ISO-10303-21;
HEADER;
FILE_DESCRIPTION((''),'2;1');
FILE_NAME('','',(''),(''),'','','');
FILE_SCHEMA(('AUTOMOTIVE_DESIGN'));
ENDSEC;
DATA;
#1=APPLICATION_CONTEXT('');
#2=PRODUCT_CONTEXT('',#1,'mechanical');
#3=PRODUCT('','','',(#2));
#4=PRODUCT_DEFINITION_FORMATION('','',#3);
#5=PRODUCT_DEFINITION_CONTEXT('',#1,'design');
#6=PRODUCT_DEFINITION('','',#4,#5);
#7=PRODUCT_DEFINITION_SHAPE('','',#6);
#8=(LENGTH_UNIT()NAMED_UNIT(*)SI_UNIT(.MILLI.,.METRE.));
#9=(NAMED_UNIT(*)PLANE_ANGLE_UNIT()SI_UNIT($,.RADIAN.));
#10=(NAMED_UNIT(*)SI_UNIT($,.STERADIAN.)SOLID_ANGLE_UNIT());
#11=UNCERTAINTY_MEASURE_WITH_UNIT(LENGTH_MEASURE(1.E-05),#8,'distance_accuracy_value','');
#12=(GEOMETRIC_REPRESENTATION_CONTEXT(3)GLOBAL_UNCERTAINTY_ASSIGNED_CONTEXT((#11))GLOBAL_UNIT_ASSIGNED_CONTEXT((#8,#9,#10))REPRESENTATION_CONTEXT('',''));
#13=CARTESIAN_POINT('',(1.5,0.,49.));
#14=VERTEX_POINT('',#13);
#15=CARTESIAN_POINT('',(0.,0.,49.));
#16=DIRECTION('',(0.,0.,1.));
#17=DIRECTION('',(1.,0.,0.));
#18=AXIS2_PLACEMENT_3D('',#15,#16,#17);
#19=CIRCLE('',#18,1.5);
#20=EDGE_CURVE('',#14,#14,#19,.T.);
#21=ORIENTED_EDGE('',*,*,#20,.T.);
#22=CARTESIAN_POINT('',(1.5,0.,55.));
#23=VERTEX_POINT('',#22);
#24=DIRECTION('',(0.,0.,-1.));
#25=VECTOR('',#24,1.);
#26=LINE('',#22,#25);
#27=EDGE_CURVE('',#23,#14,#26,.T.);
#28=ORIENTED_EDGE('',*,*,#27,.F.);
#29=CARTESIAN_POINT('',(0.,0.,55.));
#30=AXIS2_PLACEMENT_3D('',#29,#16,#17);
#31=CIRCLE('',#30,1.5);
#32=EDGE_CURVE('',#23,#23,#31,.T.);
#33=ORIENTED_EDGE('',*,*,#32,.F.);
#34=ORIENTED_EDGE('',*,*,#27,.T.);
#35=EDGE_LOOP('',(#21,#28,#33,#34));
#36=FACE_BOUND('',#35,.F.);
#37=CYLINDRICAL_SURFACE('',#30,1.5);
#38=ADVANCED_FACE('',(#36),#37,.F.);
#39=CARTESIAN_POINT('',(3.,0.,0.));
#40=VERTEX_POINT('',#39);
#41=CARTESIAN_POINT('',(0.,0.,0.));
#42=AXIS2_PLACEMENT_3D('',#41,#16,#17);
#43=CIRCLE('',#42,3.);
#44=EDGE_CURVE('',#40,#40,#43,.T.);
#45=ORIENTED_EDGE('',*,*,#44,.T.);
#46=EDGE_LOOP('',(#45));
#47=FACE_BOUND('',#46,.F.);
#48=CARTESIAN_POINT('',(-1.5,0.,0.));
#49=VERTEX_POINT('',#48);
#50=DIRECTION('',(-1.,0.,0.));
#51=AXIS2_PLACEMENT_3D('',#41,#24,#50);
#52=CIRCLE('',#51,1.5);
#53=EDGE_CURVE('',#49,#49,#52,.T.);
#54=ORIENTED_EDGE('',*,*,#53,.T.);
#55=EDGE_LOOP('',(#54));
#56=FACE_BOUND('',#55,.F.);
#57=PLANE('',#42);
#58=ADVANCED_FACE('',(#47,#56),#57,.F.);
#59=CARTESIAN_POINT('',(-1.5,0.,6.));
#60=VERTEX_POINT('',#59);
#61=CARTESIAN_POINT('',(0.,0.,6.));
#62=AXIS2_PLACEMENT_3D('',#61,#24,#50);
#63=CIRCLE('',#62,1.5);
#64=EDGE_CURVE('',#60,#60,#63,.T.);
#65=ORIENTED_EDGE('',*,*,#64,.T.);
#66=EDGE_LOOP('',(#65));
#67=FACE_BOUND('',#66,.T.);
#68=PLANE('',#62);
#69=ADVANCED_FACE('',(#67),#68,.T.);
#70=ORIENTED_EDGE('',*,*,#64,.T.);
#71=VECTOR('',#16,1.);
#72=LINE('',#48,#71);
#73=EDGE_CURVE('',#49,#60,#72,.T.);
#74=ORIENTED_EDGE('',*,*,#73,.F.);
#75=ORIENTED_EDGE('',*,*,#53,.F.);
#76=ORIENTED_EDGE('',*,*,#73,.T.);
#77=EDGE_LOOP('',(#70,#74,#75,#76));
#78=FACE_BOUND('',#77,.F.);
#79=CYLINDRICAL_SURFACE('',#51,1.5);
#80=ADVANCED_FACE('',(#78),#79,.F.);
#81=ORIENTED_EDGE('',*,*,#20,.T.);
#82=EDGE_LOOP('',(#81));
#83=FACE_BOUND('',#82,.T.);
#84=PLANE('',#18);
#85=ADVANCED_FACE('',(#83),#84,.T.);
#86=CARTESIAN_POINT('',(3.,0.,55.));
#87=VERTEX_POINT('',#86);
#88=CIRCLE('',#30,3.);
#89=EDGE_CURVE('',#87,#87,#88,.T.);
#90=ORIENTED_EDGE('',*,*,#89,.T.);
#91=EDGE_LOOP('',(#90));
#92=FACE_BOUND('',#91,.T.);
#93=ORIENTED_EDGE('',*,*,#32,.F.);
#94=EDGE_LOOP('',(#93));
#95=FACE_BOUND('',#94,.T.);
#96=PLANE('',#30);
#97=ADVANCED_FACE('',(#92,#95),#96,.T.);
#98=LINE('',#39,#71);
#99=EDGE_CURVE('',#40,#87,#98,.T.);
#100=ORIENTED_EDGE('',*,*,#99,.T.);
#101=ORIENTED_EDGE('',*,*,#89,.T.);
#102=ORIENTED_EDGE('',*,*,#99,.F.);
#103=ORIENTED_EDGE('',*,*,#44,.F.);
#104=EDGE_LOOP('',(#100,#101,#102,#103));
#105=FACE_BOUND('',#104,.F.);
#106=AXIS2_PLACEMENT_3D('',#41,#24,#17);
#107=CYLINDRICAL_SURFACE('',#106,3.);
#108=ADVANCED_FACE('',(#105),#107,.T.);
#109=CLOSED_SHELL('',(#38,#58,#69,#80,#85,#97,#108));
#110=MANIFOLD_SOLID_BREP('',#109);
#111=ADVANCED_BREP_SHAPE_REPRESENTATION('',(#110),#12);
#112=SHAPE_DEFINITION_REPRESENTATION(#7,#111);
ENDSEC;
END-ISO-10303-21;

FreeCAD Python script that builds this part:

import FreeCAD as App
import Part
import Sketcher
from FreeCAD import Vector

doc = App.newDocument("Part")
body = doc.addObject("PartDesign::Body", "Body")

# Sketch on XY plane
sketch1 = body.newObject("Sketcher::SketchObject", "Sketch")
sketch1.AttachmentSupport = (doc.getObject("XY_Plane"), [""])
sketch1.MapMode = "FlatFace"
sketch1.addGeometry(Part.Circle(Vector(0, 0, 0), Vector(0, 0, 1), 3), False)
sketch1.addConstraint([
    Sketcher.Constraint("Coincident", 0, 3, -1, 1),
    Sketcher.Constraint("Diameter", 0, 6.0),
])
pad1 = body.newObject("PartDesign::Pad", "Pad")
pad1.Profile = sketch1
pad1.Length = 55

# Sketch on XY plane
sketch2 = body.newObject("Sketcher::SketchObject", "Sketch001")
sketch2.AttachmentSupport = (doc.getObject("XY_Plane"), [""])
sketch2.MapMode = "FlatFace"
sketch2.AttachmentOffset = App.Placement(Vector(0, 0, 55), App.Rotation())
sketch2.addGeometry(Part.Circle(Vector(0, 0, 0), Vector(0, 0, 1), 1.5), False)
sketch2.addConstraint([
    Sketcher.Constraint("Coincident", 0, 3, -1, 1),
    Sketcher.Constraint("Diameter", 0, 3.0),
])
pocket1 = body.newObject("PartDesign::Pocket", "Pocket")
pocket1.Profile = sketch2
pocket1.Length = 6

# Sketch on XY plane
sketch3 = body.newObject("Sketcher::SketchObject", "Sketch002")
sketch3.AttachmentSupport = (doc.getObject("XY_Plane"), [""])
sketch3.MapMode = "FlatFace"
sketch3.addGeometry(Part.Circle(Vector(0, 0, 0), Vector(0, 0, 1), 1.5), False)
sketch3.addConstraint([
    Sketcher.Constraint("Coincident", 0, 3, -1, 1),
    Sketcher.Constraint("Diameter", 0, 3.0),
])
pocket2 = body.newObject("PartDesign::Pocket", "Pocket001")
pocket2.Profile = sketch3
pocket2.Length = 6
pocket2.Reversed = True

doc.recompute()
